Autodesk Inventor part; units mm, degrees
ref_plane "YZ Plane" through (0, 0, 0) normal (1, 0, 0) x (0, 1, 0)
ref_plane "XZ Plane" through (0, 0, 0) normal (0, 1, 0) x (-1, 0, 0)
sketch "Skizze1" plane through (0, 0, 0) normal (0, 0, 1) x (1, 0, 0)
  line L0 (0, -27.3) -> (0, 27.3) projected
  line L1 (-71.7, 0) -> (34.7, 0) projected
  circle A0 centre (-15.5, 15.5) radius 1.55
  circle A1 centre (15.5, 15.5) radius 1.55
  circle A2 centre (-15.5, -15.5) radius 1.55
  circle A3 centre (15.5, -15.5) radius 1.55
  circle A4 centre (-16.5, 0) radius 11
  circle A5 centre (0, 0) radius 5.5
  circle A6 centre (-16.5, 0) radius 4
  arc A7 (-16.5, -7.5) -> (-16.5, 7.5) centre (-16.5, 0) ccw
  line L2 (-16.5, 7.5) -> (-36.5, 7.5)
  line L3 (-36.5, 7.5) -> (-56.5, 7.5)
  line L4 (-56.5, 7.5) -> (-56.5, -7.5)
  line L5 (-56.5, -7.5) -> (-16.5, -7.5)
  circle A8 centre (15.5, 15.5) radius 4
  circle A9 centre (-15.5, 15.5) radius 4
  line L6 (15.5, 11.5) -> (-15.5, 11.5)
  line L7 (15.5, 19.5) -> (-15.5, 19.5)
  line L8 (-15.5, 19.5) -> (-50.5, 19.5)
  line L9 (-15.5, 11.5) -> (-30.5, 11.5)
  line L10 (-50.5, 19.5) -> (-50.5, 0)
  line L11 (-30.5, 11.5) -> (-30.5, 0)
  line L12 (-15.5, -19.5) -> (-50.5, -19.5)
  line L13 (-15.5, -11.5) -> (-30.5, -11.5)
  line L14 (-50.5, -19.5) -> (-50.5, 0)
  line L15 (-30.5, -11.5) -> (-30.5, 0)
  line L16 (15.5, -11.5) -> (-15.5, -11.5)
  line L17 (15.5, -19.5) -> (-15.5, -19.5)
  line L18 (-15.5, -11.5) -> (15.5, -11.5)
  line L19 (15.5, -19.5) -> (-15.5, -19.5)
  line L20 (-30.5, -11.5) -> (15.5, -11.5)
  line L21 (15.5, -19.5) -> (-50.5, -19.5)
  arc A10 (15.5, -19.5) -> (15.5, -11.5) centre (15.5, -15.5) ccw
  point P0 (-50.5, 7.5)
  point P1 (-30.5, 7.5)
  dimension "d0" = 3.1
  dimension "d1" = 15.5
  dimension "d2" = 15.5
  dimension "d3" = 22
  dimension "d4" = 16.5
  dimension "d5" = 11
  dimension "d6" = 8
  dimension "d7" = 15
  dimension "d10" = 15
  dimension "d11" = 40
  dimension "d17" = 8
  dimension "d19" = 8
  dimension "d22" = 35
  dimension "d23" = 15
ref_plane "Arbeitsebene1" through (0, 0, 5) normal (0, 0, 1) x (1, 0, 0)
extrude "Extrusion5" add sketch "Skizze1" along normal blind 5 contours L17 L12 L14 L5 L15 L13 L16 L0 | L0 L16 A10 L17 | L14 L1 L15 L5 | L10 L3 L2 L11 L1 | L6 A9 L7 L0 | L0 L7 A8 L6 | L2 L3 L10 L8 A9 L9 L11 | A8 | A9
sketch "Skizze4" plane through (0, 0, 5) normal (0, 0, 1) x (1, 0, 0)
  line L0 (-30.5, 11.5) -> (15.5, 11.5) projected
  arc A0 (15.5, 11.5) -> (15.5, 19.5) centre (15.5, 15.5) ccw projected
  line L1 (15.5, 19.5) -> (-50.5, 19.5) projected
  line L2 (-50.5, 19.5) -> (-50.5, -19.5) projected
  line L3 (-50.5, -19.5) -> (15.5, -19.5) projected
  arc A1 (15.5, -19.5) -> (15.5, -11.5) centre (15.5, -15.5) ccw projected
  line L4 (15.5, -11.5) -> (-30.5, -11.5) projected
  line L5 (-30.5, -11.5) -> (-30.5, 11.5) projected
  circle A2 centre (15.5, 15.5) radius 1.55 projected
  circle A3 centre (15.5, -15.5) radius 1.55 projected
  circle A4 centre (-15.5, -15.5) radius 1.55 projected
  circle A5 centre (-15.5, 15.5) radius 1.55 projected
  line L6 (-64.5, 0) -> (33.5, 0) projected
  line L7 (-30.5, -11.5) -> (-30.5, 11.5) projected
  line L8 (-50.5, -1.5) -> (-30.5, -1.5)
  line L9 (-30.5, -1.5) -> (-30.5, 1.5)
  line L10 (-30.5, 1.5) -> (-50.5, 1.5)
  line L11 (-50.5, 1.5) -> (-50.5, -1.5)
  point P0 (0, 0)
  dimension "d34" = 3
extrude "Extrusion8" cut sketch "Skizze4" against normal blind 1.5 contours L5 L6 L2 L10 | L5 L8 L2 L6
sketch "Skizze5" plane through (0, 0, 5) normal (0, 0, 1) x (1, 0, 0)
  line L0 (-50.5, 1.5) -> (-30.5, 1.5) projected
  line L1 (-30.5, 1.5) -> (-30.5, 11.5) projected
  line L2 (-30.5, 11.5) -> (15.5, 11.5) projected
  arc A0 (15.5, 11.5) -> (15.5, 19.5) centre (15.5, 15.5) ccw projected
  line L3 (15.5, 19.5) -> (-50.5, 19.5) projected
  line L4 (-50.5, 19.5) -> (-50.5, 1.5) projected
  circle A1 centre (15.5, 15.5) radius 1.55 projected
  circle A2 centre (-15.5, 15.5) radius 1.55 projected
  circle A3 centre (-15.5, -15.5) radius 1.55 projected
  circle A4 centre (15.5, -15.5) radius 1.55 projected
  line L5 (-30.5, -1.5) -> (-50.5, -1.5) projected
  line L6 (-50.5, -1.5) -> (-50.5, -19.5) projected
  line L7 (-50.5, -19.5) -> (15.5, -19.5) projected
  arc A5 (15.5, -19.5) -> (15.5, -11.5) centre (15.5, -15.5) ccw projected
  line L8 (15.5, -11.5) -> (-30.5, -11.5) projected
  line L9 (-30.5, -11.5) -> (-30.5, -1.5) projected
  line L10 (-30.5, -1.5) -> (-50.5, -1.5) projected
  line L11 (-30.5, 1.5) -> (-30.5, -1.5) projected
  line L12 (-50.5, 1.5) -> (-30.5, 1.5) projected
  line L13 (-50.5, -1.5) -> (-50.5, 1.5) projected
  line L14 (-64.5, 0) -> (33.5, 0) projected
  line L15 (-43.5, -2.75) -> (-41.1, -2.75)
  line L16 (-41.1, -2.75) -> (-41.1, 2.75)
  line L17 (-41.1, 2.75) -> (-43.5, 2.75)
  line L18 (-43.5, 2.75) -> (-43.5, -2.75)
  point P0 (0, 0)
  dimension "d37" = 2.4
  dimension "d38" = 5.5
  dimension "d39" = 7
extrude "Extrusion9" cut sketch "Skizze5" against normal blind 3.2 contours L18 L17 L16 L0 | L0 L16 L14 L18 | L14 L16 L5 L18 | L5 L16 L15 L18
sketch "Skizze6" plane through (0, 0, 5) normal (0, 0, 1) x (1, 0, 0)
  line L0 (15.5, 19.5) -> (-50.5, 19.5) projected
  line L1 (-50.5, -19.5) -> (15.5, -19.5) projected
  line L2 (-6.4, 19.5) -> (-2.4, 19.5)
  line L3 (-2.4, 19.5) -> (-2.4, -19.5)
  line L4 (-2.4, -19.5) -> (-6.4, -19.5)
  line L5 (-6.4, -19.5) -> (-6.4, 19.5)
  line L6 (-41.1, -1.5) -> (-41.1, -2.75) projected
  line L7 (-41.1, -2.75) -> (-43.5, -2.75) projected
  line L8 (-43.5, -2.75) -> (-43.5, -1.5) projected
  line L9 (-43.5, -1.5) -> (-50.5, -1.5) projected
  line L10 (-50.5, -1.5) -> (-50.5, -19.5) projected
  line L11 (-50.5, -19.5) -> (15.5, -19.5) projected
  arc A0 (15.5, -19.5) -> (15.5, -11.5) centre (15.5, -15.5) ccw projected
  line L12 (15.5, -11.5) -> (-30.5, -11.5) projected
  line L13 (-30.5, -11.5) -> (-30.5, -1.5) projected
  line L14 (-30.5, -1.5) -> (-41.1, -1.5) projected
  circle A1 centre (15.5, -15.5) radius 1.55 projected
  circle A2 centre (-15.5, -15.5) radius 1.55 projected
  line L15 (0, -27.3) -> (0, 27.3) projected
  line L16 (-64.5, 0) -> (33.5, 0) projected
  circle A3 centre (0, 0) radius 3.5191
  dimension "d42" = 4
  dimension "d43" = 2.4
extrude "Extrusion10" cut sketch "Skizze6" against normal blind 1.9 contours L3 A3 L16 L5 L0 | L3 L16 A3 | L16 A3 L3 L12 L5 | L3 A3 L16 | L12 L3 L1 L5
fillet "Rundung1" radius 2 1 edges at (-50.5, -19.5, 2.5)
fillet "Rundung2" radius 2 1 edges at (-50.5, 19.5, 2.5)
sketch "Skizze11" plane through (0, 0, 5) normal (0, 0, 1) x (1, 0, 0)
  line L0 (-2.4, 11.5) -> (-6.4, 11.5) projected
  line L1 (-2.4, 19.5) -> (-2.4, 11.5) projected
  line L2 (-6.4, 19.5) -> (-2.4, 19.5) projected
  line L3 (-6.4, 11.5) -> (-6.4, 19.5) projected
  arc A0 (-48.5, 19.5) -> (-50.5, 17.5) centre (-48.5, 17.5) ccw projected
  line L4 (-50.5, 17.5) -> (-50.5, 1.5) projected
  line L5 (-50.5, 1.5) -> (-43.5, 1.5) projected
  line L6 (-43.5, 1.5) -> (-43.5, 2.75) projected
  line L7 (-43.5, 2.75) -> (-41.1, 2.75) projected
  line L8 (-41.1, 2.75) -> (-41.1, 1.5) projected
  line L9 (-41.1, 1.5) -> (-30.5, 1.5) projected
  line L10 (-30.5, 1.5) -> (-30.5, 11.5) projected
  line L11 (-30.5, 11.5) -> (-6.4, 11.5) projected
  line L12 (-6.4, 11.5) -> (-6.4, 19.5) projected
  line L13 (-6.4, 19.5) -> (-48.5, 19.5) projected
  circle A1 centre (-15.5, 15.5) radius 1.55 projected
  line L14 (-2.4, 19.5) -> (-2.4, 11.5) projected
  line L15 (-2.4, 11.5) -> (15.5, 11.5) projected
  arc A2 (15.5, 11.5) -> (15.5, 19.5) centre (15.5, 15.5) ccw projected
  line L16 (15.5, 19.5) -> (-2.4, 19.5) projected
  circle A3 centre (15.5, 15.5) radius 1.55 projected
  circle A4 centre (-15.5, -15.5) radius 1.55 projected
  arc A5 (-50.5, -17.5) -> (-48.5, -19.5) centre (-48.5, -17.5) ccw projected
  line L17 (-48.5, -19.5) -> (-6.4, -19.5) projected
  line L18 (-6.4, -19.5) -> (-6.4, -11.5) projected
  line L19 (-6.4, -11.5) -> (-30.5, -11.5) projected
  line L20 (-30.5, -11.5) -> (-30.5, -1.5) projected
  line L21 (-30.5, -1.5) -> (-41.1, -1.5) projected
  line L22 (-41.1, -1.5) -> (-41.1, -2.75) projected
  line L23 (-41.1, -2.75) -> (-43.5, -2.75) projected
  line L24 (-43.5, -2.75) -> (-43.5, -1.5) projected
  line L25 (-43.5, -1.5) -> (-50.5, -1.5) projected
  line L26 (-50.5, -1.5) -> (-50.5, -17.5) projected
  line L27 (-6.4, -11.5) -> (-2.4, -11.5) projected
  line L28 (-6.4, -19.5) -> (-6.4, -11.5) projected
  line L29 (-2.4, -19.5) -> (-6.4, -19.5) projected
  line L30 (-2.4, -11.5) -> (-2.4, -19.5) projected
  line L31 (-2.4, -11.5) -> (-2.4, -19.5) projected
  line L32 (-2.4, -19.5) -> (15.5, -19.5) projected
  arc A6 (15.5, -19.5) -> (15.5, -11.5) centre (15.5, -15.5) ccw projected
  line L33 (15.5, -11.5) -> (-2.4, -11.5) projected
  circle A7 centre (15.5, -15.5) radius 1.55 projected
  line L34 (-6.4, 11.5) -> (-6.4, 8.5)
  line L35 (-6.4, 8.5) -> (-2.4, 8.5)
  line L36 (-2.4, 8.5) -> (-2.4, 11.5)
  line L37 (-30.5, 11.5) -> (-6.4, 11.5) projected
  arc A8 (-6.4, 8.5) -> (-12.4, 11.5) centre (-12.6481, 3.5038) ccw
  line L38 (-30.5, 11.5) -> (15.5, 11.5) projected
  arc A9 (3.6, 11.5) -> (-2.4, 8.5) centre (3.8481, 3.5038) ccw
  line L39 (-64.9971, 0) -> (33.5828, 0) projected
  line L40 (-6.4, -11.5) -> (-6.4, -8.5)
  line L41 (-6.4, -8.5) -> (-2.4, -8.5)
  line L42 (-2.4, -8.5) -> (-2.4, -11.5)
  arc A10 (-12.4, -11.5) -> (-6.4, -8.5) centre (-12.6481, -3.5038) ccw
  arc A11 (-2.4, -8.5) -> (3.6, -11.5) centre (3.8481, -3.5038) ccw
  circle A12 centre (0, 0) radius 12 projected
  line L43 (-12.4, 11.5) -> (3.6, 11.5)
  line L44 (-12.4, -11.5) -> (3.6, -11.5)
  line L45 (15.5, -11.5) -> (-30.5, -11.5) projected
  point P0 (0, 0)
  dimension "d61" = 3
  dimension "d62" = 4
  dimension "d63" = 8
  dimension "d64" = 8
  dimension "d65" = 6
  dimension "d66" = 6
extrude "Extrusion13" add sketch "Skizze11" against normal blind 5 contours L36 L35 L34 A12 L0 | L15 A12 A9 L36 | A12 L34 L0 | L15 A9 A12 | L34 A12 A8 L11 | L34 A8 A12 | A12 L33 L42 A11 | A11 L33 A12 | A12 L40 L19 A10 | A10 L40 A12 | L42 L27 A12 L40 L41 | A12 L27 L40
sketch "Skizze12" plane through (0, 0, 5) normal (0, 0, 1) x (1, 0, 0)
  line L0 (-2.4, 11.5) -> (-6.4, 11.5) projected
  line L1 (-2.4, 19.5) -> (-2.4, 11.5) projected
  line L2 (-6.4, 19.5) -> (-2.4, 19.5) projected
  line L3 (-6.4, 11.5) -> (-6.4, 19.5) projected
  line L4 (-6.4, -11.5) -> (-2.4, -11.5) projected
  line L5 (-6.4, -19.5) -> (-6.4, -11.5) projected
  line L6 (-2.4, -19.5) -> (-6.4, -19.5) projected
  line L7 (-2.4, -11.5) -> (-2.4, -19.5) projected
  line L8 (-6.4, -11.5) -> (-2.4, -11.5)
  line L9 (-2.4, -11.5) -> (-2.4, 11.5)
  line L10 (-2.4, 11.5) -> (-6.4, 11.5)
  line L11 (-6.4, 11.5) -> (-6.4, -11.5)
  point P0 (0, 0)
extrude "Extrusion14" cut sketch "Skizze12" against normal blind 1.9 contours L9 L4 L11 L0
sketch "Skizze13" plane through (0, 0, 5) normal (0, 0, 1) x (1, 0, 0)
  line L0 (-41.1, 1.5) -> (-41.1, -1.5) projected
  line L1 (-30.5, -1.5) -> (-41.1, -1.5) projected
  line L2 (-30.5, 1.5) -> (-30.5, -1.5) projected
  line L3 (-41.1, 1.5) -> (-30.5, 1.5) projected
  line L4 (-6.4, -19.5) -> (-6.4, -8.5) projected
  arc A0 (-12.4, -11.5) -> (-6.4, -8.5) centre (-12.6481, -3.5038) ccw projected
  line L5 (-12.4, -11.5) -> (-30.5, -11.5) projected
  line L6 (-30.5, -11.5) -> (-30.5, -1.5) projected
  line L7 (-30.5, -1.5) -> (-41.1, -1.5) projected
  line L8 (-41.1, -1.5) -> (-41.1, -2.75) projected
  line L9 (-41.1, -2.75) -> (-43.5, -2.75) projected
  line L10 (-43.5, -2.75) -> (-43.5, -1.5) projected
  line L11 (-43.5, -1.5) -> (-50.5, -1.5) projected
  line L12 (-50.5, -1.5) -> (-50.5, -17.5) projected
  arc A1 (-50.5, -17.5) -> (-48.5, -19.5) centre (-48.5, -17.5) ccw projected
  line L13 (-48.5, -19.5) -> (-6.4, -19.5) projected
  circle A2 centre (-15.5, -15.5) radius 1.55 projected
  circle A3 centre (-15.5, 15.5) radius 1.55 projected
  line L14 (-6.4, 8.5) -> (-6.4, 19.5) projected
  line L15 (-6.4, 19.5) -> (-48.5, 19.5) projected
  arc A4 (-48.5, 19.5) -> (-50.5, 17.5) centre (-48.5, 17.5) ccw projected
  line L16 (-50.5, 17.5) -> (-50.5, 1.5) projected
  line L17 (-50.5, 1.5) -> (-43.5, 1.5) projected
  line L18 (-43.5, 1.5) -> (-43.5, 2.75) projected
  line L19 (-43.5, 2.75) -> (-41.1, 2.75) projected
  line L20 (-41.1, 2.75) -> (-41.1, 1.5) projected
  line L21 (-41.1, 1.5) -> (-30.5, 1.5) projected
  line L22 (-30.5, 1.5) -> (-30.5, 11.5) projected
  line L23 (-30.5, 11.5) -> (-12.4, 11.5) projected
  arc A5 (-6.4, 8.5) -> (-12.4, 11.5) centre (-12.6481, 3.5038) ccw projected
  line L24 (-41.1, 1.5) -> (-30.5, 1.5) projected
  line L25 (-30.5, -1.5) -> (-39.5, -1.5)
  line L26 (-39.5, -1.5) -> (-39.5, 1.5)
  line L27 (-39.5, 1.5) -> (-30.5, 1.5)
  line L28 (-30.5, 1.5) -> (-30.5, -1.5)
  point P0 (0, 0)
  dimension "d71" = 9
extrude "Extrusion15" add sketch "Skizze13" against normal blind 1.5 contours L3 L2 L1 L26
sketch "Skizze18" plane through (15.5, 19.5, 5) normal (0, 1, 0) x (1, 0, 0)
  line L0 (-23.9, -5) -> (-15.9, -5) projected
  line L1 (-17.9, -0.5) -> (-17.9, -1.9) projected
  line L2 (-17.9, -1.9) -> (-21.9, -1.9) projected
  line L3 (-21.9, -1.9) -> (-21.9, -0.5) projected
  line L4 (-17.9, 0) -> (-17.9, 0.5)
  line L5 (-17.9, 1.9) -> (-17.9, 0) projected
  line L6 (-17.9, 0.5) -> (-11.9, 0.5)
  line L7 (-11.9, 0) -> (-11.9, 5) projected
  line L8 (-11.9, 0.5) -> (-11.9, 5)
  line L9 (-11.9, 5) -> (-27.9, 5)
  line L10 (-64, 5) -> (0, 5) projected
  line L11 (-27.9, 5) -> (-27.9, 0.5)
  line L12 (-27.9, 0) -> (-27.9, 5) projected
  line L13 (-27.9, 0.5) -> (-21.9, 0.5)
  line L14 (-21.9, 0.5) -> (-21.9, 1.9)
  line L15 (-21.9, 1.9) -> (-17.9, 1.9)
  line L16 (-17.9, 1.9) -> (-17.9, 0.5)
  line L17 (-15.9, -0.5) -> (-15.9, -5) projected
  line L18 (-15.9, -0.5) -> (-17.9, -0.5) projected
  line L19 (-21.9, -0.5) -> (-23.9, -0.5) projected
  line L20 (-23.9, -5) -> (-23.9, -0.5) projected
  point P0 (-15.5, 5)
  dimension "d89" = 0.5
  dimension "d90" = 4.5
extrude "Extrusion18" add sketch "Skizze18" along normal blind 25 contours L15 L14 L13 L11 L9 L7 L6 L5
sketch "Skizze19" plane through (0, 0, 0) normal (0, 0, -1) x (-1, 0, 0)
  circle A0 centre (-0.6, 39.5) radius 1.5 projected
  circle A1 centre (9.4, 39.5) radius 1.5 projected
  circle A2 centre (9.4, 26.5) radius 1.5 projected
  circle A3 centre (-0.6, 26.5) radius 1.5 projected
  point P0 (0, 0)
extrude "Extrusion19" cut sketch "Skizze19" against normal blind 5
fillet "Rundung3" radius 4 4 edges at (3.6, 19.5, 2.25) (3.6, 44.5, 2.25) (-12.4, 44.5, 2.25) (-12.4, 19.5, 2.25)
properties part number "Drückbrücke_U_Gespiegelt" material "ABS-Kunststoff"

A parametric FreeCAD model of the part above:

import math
import FreeCAD as App
import Part
import Sketcher


def edges_at(feature, points):
    """Names of the edges that pass closest to the given points."""
    edges = feature.Shape.Edges
    near = lambda p: min(range(len(edges)), key=lambda i: edges[i].distToShape(Part.Vertex(*p))[0])
    return sorted({f"Edge{near(p) + 1}" for p in points})

doc = App.newDocument("Part")
body = doc.addObject("PartDesign::Body", "Body")

sketch1 = body.newObject("Sketcher::SketchObject", "Sketch")
sketch1.AttachmentSupport = (doc.getObject("XY_Plane"), [""])
sketch1.MapMode = "FlatFace"
sketch1.addGeometry([
    Part.ArcOfCircle(Part.Circle(App.Vector(15.5, -15.5, 0), App.Vector(0, 0, 1), 4), math.radians(-90), math.radians(90)),
    Part.LineSegment(App.Vector(15.5, -11.5, 0), App.Vector(-30.5, -11.5, 0)),
    Part.LineSegment(App.Vector(-30.5, -11.5, 0), App.Vector(-30.5, 11.5, 0)),
    Part.LineSegment(App.Vector(-30.5, 11.5, 0), App.Vector(15.5, 11.5, 0)),
    Part.ArcOfCircle(Part.Circle(App.Vector(15.5, 15.5, 0), App.Vector(0, 0, 1), 4), math.radians(-90), math.radians(90)),
    Part.LineSegment(App.Vector(15.5, 19.5, 0), App.Vector(-50.5, 19.5, 0)),
    Part.LineSegment(App.Vector(-50.5, 19.5, 0), App.Vector(-50.5, -19.5, 0)),
    Part.LineSegment(App.Vector(-50.5, -19.5, 0), App.Vector(15.5, -19.5, 0)),
    Part.Circle(App.Vector(-15.5, -15.5, 0), App.Vector(0, 0, 1), 1.55),
    Part.Circle(App.Vector(15.5, -15.5, 0), App.Vector(0, 0, 1), 1.55),
    Part.Circle(App.Vector(-15.5, 15.5, 0), App.Vector(0, 0, 1), 1.55),
    Part.Circle(App.Vector(15.5, 15.5, 0), App.Vector(0, 0, 1), 1.55),
], False)
sketch1.addConstraint([
    Sketcher.Constraint("Tangent", 0, 2, 1, 1),
    Sketcher.Constraint("Coincident", 1, 2, 2, 1),
    Sketcher.Constraint("Coincident", 2, 2, 3, 1),
    Sketcher.Constraint("Tangent", 3, 2, 4, 1),
    Sketcher.Constraint("Tangent", 4, 2, 5, 1),
    Sketcher.Constraint("Coincident", 5, 2, 6, 1),
    Sketcher.Constraint("Coincident", 6, 2, 7, 1),
    Sketcher.Constraint("Tangent", 7, 2, 0, 1),
    Sketcher.Constraint("Horizontal", 1),
    Sketcher.Constraint("Vertical", 2),
    Sketcher.Constraint("Horizontal", 3),
    Sketcher.Constraint("Horizontal", 5),
    Sketcher.Constraint("Vertical", 6),
    Sketcher.Constraint("Horizontal", 7),
    Sketcher.Constraint("Coincident", 9, 3, 0, 3),
    Sketcher.Constraint("Coincident", 11, 3, 4, 3),
    Sketcher.Constraint("Equal", 0, 4),
    Sketcher.Constraint("Equal", 8, 9),
    Sketcher.Constraint("Equal", 9, 10),
    Sketcher.Constraint("Equal", 10, 11),
    Sketcher.Constraint("Symmetric", 4, 3, 8, 3, -1, 1),
    Sketcher.Constraint("Symmetric", 0, 3, 10, 3, -1, 1),
    Sketcher.Constraint("Symmetric", 0, 3, 8, 3, -2),
    Sketcher.Constraint("Radius", 0, 4.0),
    Sketcher.Constraint("Diameter", 8, 3.1),
    Sketcher.Constraint("DistanceX", 1, 2, 8, 3, 15.0),
    Sketcher.Constraint("DistanceX", 5, 2, 10, 3, 35.0),
    Sketcher.Constraint("DistanceY", 8, 3, 5, 2, 35.0),
    Sketcher.Constraint("DistanceX", -1, 1, 0, 3, 15.5),
])
pad1 = body.newObject("PartDesign::Pad", "Pad")
pad1.Profile = sketch1
pad1.Length = 5

sketch2 = body.newObject("Sketcher::SketchObject", "Sketch001")
sketch2.AttachmentSupport = (doc.getObject("XY_Plane"), [""])
sketch2.MapMode = "FlatFace"
sketch2.AttachmentOffset = App.Placement(App.Vector(0, 0, 5), App.Rotation())
sketch2.addGeometry([
    Part.LineSegment(App.Vector(-30.5, 1.5, 0), App.Vector(-50.5, 1.5, 0)),
    Part.LineSegment(App.Vector(-50.5, 1.5, 0), App.Vector(-50.5, -1.5, 0)),
    Part.LineSegment(App.Vector(-50.5, -1.5, 0), App.Vector(-30.5, -1.5, 0)),
    Part.LineSegment(App.Vector(-30.5, -1.5, 0), App.Vector(-30.5, 1.5, 0)),
], False)
sketch2.addConstraint([
    Sketcher.Constraint("Coincident", 0, 2, 1, 1),
    Sketcher.Constraint("Coincident", 1, 2, 2, 1),
    Sketcher.Constraint("Coincident", 2, 2, 3, 1),
    Sketcher.Constraint("Coincident", 3, 2, 0, 1),
    Sketcher.Constraint("Horizontal", 0),
    Sketcher.Constraint("Vertical", 1),
    Sketcher.Constraint("Horizontal", 2),
    Sketcher.Constraint("Vertical", 3),
    Sketcher.Constraint("DistanceY", 1, 2, 1, 1, 3.0),
    Sketcher.Constraint("DistanceX", 0, 2, 0, 1, 20.0),
    Sketcher.Constraint("DistanceX", 0, 2, -1, 1, 50.5),
    Sketcher.Constraint("DistanceY", -1, 1, 0, 2, 1.5),
])
pocket1 = body.newObject("PartDesign::Pocket", "Pocket")
pocket1.Profile = sketch2
pocket1.Length = 1.5

sketch3 = body.newObject("Sketcher::SketchObject", "Sketch002")
sketch3.AttachmentSupport = (doc.getObject("XY_Plane"), [""])
sketch3.MapMode = "FlatFace"
sketch3.AttachmentOffset = App.Placement(App.Vector(0, 0, 5), App.Rotation())
sketch3.addGeometry([
    Part.LineSegment(App.Vector(-43.5, 2.75, 0), App.Vector(-43.5, -2.75, 0)),
    Part.LineSegment(App.Vector(-43.5, -2.75, 0), App.Vector(-41.1, -2.75, 0)),
    Part.LineSegment(App.Vector(-41.1, -2.75, 0), App.Vector(-41.1, 2.75, 0)),
    Part.LineSegment(App.Vector(-41.1, 2.75, 0), App.Vector(-43.5, 2.75, 0)),
], False)
sketch3.addConstraint([
    Sketcher.Constraint("Coincident", 0, 2, 1, 1),
    Sketcher.Constraint("Coincident", 1, 2, 2, 1),
    Sketcher.Constraint("Coincident", 2, 2, 3, 1),
    Sketcher.Constraint("Coincident", 3, 2, 0, 1),
    Sketcher.Constraint("Vertical", 0),
    Sketcher.Constraint("Horizontal", 1),
    Sketcher.Constraint("Vertical", 2),
    Sketcher.Constraint("Horizontal", 3),
    Sketcher.Constraint("DistanceX", 1, 1, 1, 2, 2.4),
    Sketcher.Constraint("DistanceY", 0, 2, 0, 1, 5.5),
    Sketcher.Constraint("DistanceX", 0, 2, -1, 1, 43.5),
    Sketcher.Constraint("DistanceY", 0, 2, -1, 1, 2.75),
])
pocket2 = body.newObject("PartDesign::Pocket", "Pocket001")
pocket2.Profile = sketch3
pocket2.Length = 3.2

sketch4 = body.newObject("Sketcher::SketchObject", "Sketch003")
sketch4.AttachmentSupport = (doc.getObject("XY_Plane"), [""])
sketch4.MapMode = "FlatFace"
sketch4.AttachmentOffset = App.Placement(App.Vector(0, 0, 5), App.Rotation())
sketch4.addGeometry([
    Part.LineSegment(App.Vector(-2.4, 19.5, 0), App.Vector(-6.4, 19.5, 0)),
    Part.LineSegment(App.Vector(-6.4, 19.5, 0), App.Vector(-6.4, -19.5, 0)),
    Part.LineSegment(App.Vector(-6.4, -19.5, 0), App.Vector(-2.4, -19.5, 0)),
    Part.LineSegment(App.Vector(-2.4, -19.5, 0), App.Vector(-2.4, 19.5, 0)),
], False)
sketch4.addConstraint([
    Sketcher.Constraint("Coincident", 0, 2, 1, 1),
    Sketcher.Constraint("Coincident", 1, 2, 2, 1),
    Sketcher.Constraint("Coincident", 2, 2, 3, 1),
    Sketcher.Constraint("Coincident", 3, 2, 0, 1),
    Sketcher.Constraint("Horizontal", 0),
    Sketcher.Constraint("Vertical", 1),
    Sketcher.Constraint("Horizontal", 2),
    Sketcher.Constraint("Vertical", 3),
    Sketcher.Constraint("DistanceX", 0, 2, 0, 1, 4.0),
    Sketcher.Constraint("DistanceX", 2, 2, -1, 1, 2.4),
    Sketcher.Constraint("DistanceY", 1, 2, 1, 1, 39.0),
    Sketcher.Constraint("DistanceY", -1, 1, 0, 2, 19.5),
])
pocket3 = body.newObject("PartDesign::Pocket", "Pocket002")
pocket3.Profile = sketch4
pocket3.Length = 1.9
doc.recompute()

fillet = body.newObject("PartDesign::Fillet", "Fillet")
fillet.Base = (pocket3, edges_at(pocket3, [(-50.5, -19.5, 2.5)]))
fillet.Radius = 2
doc.recompute()

fillet2 = body.newObject("PartDesign::Fillet", "Fillet001")
fillet2.Base = (fillet, edges_at(fillet, [(-50.5, 19.5, 2.5)]))
fillet2.Radius = 2

sketch5 = body.newObject("Sketcher::SketchObject", "Sketch004")
sketch5.AttachmentSupport = (doc.getObject("XY_Plane"), [""])
sketch5.MapMode = "FlatFace"
sketch5.AttachmentOffset = App.Placement(App.Vector(0, 0, 5), App.Rotation())
sketch5.addGeometry([
    Part.LineSegment(App.Vector(-6.4, 8.5, 0), App.Vector(-2.4, 8.5, 0)),
    Part.ArcOfCircle(Part.Circle(App.Vector(3.8481, 3.5038, 0), App.Vector(0, 0, 1), 8.000048), math.radians(91.77716), math.radians(141.352943)),
    Part.LineSegment(App.Vector(3.6, 11.5, 0), App.Vector(-12.4, 11.5, 0)),
    Part.ArcOfCircle(Part.Circle(App.Vector(-12.6481, 3.5038, 0), App.Vector(0, 0, 1), 8.000048), math.radians(38.647057), math.radians(88.22284)),
    Part.ArcOfCircle(Part.Circle(App.Vector(3.8481, -3.5038, 0), App.Vector(0, 0, 1), 8.000048), math.radians(-141.352943), math.radians(-91.77716)),
    Part.LineSegment(App.Vector(-2.4, -8.5, 0), App.Vector(-6.4, -8.5, 0)),
    Part.ArcOfCircle(Part.Circle(App.Vector(-12.6481, -3.5038, 0), App.Vector(0, 0, 1), 8.000048), math.radians(-88.22284), math.radians(-38.647057)),
    Part.LineSegment(App.Vector(-12.4, -11.5, 0), App.Vector(3.6, -11.5, 0)),
], False)
sketch5.addConstraint([
    Sketcher.Constraint("Coincident", 0, 2, 1, 2),
    Sketcher.Constraint("Coincident", 1, 1, 2, 1),
    Sketcher.Constraint("Coincident", 2, 2, 3, 2),
    Sketcher.Constraint("Coincident", 3, 1, 0, 1),
    Sketcher.Constraint("Coincident", 4, 1, 5, 1),
    Sketcher.Constraint("Coincident", 5, 2, 6, 2),
    Sketcher.Constraint("Coincident", 6, 1, 7, 1),
    Sketcher.Constraint("Coincident", 7, 2, 4, 2),
    Sketcher.Constraint("Horizontal", 0),
    Sketcher.Constraint("Horizontal", 2),
    Sketcher.Constraint("Horizontal", 5),
    Sketcher.Constraint("Horizontal", 7),
    Sketcher.Constraint("Equal", 1, 3),
    Sketcher.Constraint("Equal", 3, 4),
    Sketcher.Constraint("Equal", 4, 6),
    Sketcher.Constraint("Symmetric", 1, 3, 4, 3, -1),
    Sketcher.Constraint("Symmetric", 3, 3, 6, 3, -1),
    Sketcher.Constraint("Horizontal", 1, 3, 3, 3),
    Sketcher.Constraint("Vertical", 0, 2, 4, 1),
    Sketcher.Constraint("Vertical", 2, 2, 6, 1),
    Sketcher.Constraint("Radius", 1, 8.0),
    Sketcher.Constraint("DistanceX", 0, 1, 0, 2, 4.0),
    Sketcher.Constraint("DistanceX", 0, 2, 1, 1, 6.0),
    Sketcher.Constraint("DistanceY", 0, 2, 1, 1, 3.0),
    Sketcher.Constraint("DistanceY", 4, 1, 0, 2, 17.0),
    Sketcher.Constraint("DistanceX", 0, 2, -1, 1, 2.4),
])
pad2 = body.newObject("PartDesign::Pad", "Pad001")
pad2.Profile = sketch5
pad2.Length = 5
pad2.Reversed = True

sketch6 = body.newObject("Sketcher::SketchObject", "Sketch005")
sketch6.AttachmentSupport = (doc.getObject("XY_Plane"), [""])
sketch6.MapMode = "FlatFace"
sketch6.AttachmentOffset = App.Placement(App.Vector(0, 0, 5), App.Rotation())
sketch6.addGeometry([
    Part.LineSegment(App.Vector(-2.4, -11.5, 0), App.Vector(-2.4, 11.5, 0)),
    Part.LineSegment(App.Vector(-2.4, 11.5, 0), App.Vector(-6.4, 11.5, 0)),
    Part.LineSegment(App.Vector(-6.4, 11.5, 0), App.Vector(-6.4, -11.5, 0)),
    Part.LineSegment(App.Vector(-6.4, -11.5, 0), App.Vector(-2.4, -11.5, 0)),
], False)
sketch6.addConstraint([
    Sketcher.Constraint("Coincident", 0, 2, 1, 1),
    Sketcher.Constraint("Coincident", 1, 2, 2, 1),
    Sketcher.Constraint("Coincident", 2, 2, 3, 1),
    Sketcher.Constraint("Coincident", 3, 2, 0, 1),
    Sketcher.Constraint("Vertical", 0),
    Sketcher.Constraint("Horizontal", 1),
    Sketcher.Constraint("Vertical", 2),
    Sketcher.Constraint("Horizontal", 3),
    Sketcher.Constraint("DistanceX", 1, 2, 1, 1, 4.0),
    Sketcher.Constraint("DistanceY", 0, 1, 0, 2, 23.0),
    Sketcher.Constraint("DistanceX", 0, 2, -1, 1, 2.4),
    Sketcher.Constraint("DistanceY", -1, 1, 0, 2, 11.5),
])
pocket4 = body.newObject("PartDesign::Pocket", "Pocket003")
pocket4.Profile = sketch6
pocket4.Length = 1.9

sketch7 = body.newObject("Sketcher::SketchObject", "Sketch006")
sketch7.AttachmentSupport = (doc.getObject("XY_Plane"), [""])
sketch7.MapMode = "FlatFace"
sketch7.AttachmentOffset = App.Placement(App.Vector(0, 0, 5), App.Rotation())
sketch7.addGeometry([
    Part.LineSegment(App.Vector(-30.5, 1.5, 0), App.Vector(-39.5, 1.5, 0)),
    Part.LineSegment(App.Vector(-39.5, 1.5, 0), App.Vector(-39.5, -1.5, 0)),
    Part.LineSegment(App.Vector(-39.5, -1.5, 0), App.Vector(-30.5, -1.5, 0)),
    Part.LineSegment(App.Vector(-30.5, -1.5, 0), App.Vector(-30.5, 1.5, 0)),
], False)
sketch7.addConstraint([
    Sketcher.Constraint("Coincident", 0, 2, 1, 1),
    Sketcher.Constraint("Coincident", 1, 2, 2, 1),
    Sketcher.Constraint("Coincident", 2, 2, 3, 1),
    Sketcher.Constraint("Coincident", 3, 2, 0, 1),
    Sketcher.Constraint("Horizontal", 0),
    Sketcher.Constraint("Vertical", 1),
    Sketcher.Constraint("Horizontal", 2),
    Sketcher.Constraint("Vertical", 3),
    Sketcher.Constraint("DistanceX", 0, 2, 0, 1, 9.0),
    Sketcher.Constraint("DistanceY", 1, 2, 1, 1, 3.0),
    Sketcher.Constraint("DistanceX", 0, 2, -1, 1, 39.5),
    Sketcher.Constraint("DistanceY", -1, 1, 0, 2, 1.5),
])
pad3 = body.newObject("PartDesign::Pad", "Pad002")
pad3.Profile = sketch7
pad3.Length = 1.5
pad3.Reversed = True

sketch8 = body.newObject("Sketcher::SketchObject", "Sketch007")
sketch8.AttachmentSupport = (doc.getObject("XZ_Plane"), [""])
sketch8.MapMode = "FlatFace"
sketch8.AttachmentOffset = App.Placement(App.Vector(0, 0, -19.5), App.Rotation())
sketch8.addGeometry([
    Part.LineSegment(App.Vector(-6.4, 3.1, 0), App.Vector(-2.4, 3.1, 0)),
    Part.LineSegment(App.Vector(-2.4, 3.1, 0), App.Vector(-2.4, 4.5, 0)),
    Part.LineSegment(App.Vector(-2.4, 4.5, 0), App.Vector(3.6, 4.5, 0)),
    Part.LineSegment(App.Vector(3.6, 4.5, 0), App.Vector(3.6, 0, 0)),
    Part.LineSegment(App.Vector(3.6, 0, 0), App.Vector(-12.4, 0, 0)),
    Part.LineSegment(App.Vector(-12.4, 0, 0), App.Vector(-12.4, 4.5, 0)),
    Part.LineSegment(App.Vector(-12.4, 4.5, 0), App.Vector(-6.4, 4.5, 0)),
    Part.LineSegment(App.Vector(-6.4, 4.5, 0), App.Vector(-6.4, 3.1, 0)),
], False)
sketch8.addConstraint([
    Sketcher.Constraint("Coincident", 0, 2, 1, 1),
    Sketcher.Constraint("Coincident", 1, 2, 2, 1),
    Sketcher.Constraint("Coincident", 2, 2, 3, 1),
    Sketcher.Constraint("Coincident", 3, 2, 4, 1),
    Sketcher.Constraint("Coincident", 4, 2, 5, 1),
    Sketcher.Constraint("Coincident", 5, 2, 6, 1),
    Sketcher.Constraint("Coincident", 6, 2, 7, 1),
    Sketcher.Constraint("Coincident", 7, 2, 0, 1),
    Sketcher.Constraint("Horizontal", 0),
    Sketcher.Constraint("Vertical", 1),
    Sketcher.Constraint("Horizontal", 2),
    Sketcher.Constraint("Vertical", 3),
    Sketcher.Constraint("Horizontal", 4),
    Sketcher.Constraint("Vertical", 5),
    Sketcher.Constraint("Horizontal", 6),
    Sketcher.Constraint("Vertical", 7),
    Sketcher.Constraint("PointOnObject", 3, 2, -1),
    Sketcher.Constraint("Horizontal", 2, 2, 5, 2),
    Sketcher.Constraint("Equal", 2, 6),
    Sketcher.Constraint("DistanceY", 3, 2, 3, 1, 4.5),
    Sketcher.Constraint("DistanceX", 0, 1, 0, 2, 4.0),
    Sketcher.Constraint("DistanceX", 2, 1, 2, 2, 6.0),
    Sketcher.Constraint("DistanceY", 1, 1, 1, 2, 1.4),
    Sketcher.Constraint("DistanceX", 0, 2, -1, 1, 2.4),
])
pad4 = body.newObject("PartDesign::Pad", "Pad003")
pad4.Profile = sketch8
pad4.Length = 25
pad4.Reversed = True

sketch9 = body.newObject("Sketcher::SketchObject", "Sketch008")
sketch9.AttachmentSupport = (doc.getObject("XY_Plane"), [""])
sketch9.MapMode = "FlatFace"
sketch9.addGeometry([
    Part.Circle(App.Vector(0.6, 39.5, 0), App.Vector(0, 0, 1), 1.5),
    Part.Circle(App.Vector(-9.4, 39.5, 0), App.Vector(0, 0, 1), 1.5),
    Part.Circle(App.Vector(-9.4, 26.5, 0), App.Vector(0, 0, 1), 1.5),
    Part.Circle(App.Vector(0.6, 26.5, 0), App.Vector(0, 0, 1), 1.5),
], False)
sketch9.addConstraint([
    Sketcher.Constraint("Equal", 0, 1),
    Sketcher.Constraint("Equal", 1, 2),
    Sketcher.Constraint("Equal", 2, 3),
    Sketcher.Constraint("Horizontal", 0, 3, 1, 3),
    Sketcher.Constraint("Horizontal", 2, 3, 3, 3),
    Sketcher.Constraint("Vertical", 1, 3, 2, 3),
    Sketcher.Constraint("Vertical", 0, 3, 3, 3),
    Sketcher.Constraint("Diameter", 0, 3.0),
    Sketcher.Constraint("DistanceX", 1, 3, 0, 3, 10.0),
    Sketcher.Constraint("DistanceY", 2, 3, 1, 3, 13.0),
    Sketcher.Constraint("DistanceX", -1, 1, 0, 3, 0.6),
    Sketcher.Constraint("DistanceY", -1, 1, 0, 3, 39.5),
])
pocket5 = body.newObject("PartDesign::Pocket", "Pocket004")
pocket5.Profile = sketch9
pocket5.Length = 5
pocket5.Reversed = True
doc.recompute()

fillet3 = body.newObject("PartDesign::Fillet", "Fillet002")
fillet3.Base = (pocket5, edges_at(pocket5, [
    (3.6, 19.5, 2.25),
    (3.6, 44.5, 2.25),
    (-12.4, 44.5, 2.25),
    (-12.4, 19.5, 2.25),
]))
fillet3.Radius = 4

doc.recompute()
